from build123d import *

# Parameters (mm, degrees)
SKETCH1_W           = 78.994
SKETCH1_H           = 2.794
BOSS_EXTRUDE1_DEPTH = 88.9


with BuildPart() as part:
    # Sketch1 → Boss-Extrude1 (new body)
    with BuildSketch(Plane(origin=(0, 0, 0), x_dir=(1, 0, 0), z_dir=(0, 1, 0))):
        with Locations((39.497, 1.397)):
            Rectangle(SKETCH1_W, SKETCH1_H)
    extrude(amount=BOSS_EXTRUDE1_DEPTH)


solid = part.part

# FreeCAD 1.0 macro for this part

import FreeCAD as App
import Part
import Sketcher
Q = App.Units.Quantity


def add_polygon(sketch, points):
    """Adds a closed chain of lines whose ends are joined by coincident constraints."""
    first, n = sketch.GeometryCount, len(points)
    for a, b in zip(points, points[1:] + points[:1]):
        sketch.addGeometry(Part.LineSegment(App.Vector(*a, 0), App.Vector(*b, 0)), False)
    for i in range(n):
        sketch.addConstraint(Sketcher.Constraint("Coincident", first + i, 2, first + (i + 1) % n, 1))

doc = App.newDocument("Part")
body = doc.addObject("PartDesign::Body", "Body")

# Sketch on XZ plane
sketch1 = doc.addObject("Sketcher::SketchObject", "Sketch")
body.addObject(sketch1)
sketch1.AttachmentSupport = (doc.XZ_Plane, [""])
sketch1.MapMode = "FlatFace"
add_polygon(sketch1, [(0, -2.8), (0, 0), (79, 0), (79, -2.8)])  # lines 0-3
sketch1.addConstraint([
    Sketcher.Constraint("Vertical", 0),
    Sketcher.Constraint("Horizontal", 1),
    Sketcher.Constraint("Vertical", 2),
    Sketcher.Constraint("Horizontal", 3),
    Sketcher.Constraint("Coincident", 0, 2, -1, 1),
    Sketcher.Constraint("DistanceX", 1, 1, 1, 2, Q("3.11 in")),
    Sketcher.Constraint("DistanceY", 0, 1, 0, 2, Q("0.11 in")),
])
pad1 = doc.addObject("PartDesign::Pad", "Pad")
body.addObject(pad1)
pad1.Profile = sketch1
pad1.Length = Q("3.5 in")
pad1.Reversed = True

doc.recompute()
